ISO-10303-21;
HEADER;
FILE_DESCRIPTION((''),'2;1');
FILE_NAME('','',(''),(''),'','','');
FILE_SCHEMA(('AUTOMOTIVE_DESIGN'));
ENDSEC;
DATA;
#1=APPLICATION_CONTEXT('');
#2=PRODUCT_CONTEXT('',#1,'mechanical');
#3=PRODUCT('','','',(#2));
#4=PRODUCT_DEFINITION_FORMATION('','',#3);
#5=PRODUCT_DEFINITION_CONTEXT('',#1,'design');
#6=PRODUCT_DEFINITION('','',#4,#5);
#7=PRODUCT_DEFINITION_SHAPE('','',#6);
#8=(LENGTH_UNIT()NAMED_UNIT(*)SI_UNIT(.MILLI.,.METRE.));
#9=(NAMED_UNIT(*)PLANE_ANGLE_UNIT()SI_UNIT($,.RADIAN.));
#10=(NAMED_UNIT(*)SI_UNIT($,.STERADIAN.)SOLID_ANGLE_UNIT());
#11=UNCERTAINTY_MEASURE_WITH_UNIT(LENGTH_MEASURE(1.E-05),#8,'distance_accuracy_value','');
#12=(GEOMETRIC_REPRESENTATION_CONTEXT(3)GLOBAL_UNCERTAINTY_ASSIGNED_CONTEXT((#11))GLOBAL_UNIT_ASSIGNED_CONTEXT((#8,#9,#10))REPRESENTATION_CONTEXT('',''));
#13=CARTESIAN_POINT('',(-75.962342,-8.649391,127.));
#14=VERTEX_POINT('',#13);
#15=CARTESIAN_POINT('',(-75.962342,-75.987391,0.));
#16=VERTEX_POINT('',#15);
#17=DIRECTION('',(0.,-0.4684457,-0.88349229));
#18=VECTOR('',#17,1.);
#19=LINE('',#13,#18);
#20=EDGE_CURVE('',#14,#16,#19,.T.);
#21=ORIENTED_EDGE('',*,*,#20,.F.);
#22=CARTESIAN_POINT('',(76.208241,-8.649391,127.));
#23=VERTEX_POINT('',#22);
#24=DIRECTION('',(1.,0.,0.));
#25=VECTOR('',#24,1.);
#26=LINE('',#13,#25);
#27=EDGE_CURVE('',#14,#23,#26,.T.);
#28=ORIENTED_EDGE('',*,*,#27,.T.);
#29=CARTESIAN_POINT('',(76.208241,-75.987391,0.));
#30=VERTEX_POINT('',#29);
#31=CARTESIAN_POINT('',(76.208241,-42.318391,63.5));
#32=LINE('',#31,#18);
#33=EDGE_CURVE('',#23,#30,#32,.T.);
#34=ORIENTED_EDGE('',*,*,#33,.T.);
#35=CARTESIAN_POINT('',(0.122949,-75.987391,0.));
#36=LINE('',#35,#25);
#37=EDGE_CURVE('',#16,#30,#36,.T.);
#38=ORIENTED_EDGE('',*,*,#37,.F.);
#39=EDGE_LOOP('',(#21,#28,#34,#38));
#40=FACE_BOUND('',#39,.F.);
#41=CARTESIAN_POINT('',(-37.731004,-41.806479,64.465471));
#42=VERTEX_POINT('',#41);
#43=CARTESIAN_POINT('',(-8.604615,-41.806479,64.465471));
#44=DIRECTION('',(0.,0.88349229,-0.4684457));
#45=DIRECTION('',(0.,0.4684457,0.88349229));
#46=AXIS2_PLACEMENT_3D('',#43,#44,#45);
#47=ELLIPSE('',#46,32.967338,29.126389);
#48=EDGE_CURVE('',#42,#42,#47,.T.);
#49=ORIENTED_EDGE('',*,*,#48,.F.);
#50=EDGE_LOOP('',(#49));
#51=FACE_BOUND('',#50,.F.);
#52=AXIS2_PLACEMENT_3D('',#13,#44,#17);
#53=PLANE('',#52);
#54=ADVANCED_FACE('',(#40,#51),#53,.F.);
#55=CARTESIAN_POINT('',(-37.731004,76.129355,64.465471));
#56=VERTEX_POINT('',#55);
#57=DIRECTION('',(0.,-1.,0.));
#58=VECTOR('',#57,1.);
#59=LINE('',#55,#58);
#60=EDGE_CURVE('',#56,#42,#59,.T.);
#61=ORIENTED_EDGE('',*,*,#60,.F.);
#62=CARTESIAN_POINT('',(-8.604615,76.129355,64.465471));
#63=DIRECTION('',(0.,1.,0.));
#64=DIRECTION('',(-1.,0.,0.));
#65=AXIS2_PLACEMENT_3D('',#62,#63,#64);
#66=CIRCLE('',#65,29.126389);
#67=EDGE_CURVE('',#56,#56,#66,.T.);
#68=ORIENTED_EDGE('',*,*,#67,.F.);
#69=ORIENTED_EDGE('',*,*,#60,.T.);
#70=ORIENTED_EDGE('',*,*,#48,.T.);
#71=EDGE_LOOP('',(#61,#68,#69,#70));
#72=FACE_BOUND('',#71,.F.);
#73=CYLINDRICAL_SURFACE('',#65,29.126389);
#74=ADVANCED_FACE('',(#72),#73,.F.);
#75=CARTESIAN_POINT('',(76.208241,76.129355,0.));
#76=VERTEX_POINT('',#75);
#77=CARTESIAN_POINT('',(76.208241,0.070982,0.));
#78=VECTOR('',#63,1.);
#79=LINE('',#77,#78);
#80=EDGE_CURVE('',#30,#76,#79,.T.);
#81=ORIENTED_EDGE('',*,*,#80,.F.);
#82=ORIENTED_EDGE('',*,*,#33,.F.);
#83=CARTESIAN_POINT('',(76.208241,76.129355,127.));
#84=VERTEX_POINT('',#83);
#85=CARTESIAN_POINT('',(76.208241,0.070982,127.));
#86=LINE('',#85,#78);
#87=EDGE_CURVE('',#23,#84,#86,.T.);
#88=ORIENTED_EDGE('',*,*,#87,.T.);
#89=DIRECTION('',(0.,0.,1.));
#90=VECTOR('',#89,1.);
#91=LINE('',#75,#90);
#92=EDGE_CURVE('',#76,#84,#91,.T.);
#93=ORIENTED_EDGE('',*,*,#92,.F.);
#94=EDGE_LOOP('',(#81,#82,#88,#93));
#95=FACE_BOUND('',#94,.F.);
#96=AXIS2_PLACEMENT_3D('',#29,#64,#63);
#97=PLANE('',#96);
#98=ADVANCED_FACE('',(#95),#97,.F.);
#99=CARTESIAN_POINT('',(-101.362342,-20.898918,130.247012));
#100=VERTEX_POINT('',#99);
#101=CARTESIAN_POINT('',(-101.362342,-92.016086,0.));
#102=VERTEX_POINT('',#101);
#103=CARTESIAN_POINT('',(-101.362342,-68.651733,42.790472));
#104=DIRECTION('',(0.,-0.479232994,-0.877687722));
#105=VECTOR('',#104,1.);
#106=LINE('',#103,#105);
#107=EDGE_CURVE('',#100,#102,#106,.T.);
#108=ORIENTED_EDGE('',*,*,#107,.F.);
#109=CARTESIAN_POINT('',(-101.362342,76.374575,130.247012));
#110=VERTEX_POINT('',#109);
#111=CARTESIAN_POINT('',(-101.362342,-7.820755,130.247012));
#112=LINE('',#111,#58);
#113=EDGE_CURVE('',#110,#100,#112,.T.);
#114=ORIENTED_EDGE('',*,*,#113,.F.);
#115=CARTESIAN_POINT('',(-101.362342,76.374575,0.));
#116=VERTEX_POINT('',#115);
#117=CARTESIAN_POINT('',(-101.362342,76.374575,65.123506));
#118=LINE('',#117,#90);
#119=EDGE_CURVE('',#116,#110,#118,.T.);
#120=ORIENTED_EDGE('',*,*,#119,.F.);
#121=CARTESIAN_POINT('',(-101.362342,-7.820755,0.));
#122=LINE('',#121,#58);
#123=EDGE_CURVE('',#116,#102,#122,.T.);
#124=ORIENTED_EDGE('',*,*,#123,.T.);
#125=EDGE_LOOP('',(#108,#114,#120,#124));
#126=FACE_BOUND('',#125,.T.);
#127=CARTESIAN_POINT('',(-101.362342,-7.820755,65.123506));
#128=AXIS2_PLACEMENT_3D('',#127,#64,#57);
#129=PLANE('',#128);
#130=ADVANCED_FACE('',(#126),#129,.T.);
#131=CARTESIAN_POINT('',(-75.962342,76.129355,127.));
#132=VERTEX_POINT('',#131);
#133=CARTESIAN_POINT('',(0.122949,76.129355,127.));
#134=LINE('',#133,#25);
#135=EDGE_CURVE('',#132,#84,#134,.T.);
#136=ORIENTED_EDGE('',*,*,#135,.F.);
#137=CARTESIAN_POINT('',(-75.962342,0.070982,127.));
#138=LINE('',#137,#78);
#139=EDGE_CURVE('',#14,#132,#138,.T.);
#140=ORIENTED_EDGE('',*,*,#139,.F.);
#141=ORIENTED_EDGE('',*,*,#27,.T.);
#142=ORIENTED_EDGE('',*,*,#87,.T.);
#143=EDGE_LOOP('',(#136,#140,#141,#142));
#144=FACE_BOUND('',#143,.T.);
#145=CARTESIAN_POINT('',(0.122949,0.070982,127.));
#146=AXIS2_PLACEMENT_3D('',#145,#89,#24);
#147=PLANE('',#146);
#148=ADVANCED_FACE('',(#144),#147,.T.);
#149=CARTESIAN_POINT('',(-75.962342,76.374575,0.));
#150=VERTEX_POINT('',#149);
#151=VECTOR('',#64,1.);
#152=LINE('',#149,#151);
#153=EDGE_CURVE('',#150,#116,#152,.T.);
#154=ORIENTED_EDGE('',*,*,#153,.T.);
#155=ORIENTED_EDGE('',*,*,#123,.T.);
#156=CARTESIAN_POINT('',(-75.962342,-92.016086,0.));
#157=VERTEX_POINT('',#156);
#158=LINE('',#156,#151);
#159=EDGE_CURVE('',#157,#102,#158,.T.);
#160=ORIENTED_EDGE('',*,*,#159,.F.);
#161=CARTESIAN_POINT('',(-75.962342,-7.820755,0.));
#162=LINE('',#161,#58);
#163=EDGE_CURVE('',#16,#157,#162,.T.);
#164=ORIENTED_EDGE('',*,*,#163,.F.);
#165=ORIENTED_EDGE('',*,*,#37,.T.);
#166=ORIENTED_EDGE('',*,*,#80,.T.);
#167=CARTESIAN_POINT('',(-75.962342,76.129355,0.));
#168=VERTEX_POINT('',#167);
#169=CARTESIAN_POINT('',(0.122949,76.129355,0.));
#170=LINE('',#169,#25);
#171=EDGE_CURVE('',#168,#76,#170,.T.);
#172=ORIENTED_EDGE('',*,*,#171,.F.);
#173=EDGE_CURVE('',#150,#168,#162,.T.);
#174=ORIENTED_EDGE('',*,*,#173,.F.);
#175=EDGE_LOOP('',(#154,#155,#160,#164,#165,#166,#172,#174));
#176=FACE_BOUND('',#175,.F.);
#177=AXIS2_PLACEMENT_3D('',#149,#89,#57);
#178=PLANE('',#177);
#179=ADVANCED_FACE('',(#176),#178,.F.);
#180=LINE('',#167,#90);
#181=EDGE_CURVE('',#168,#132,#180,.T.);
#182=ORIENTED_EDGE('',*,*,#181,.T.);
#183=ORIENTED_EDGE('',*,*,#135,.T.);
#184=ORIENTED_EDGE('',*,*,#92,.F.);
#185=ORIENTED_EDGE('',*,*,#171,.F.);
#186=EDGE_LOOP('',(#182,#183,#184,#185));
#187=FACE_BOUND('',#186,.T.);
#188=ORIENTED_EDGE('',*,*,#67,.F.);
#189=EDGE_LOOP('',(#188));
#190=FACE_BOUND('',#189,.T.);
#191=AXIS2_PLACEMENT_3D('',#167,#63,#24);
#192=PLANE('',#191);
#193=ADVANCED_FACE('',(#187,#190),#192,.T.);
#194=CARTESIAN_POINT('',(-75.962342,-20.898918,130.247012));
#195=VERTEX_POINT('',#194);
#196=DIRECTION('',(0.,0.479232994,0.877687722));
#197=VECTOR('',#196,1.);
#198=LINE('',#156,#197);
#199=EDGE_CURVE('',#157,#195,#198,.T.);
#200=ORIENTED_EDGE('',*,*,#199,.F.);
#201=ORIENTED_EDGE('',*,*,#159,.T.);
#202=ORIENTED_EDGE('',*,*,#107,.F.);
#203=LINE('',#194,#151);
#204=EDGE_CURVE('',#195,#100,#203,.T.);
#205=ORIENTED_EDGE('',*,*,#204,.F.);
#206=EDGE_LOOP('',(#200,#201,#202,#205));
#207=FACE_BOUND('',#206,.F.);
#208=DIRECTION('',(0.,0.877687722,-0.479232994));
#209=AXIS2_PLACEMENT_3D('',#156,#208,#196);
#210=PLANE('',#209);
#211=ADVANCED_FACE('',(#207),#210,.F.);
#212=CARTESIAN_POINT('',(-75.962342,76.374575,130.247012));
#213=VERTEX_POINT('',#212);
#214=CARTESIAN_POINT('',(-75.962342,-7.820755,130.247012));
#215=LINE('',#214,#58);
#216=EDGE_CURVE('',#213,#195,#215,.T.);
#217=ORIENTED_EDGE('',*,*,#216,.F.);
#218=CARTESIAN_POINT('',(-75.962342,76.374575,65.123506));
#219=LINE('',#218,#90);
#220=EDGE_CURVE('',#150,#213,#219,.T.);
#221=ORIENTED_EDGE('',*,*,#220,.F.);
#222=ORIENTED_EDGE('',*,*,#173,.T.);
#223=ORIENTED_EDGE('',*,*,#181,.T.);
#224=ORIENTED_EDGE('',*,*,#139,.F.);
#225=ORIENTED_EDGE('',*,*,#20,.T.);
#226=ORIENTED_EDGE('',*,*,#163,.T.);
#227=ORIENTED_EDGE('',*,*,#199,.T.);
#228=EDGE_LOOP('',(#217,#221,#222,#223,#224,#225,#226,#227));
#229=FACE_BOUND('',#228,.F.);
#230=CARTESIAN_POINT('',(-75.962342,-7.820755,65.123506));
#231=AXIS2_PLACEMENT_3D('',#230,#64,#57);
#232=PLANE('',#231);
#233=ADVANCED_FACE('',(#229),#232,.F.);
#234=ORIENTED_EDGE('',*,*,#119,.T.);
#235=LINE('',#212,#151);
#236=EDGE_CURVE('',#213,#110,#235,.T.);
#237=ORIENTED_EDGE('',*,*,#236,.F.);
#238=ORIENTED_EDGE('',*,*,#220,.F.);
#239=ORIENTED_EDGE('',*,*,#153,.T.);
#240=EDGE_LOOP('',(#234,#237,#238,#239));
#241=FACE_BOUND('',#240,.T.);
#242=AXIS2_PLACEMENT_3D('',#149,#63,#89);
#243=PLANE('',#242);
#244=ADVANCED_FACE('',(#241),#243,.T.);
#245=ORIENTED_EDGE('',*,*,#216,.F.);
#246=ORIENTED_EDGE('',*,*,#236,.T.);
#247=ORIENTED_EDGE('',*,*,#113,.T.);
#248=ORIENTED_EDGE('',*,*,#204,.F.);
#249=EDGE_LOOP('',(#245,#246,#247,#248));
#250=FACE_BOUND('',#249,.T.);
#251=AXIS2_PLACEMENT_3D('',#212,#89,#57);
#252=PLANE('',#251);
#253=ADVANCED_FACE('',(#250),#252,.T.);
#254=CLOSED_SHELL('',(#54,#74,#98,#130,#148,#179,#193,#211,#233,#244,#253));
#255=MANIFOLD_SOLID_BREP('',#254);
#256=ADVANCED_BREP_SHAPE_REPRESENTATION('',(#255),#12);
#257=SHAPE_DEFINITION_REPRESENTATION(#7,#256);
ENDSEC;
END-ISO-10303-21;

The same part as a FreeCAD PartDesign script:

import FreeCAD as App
import Part
import Sketcher
from FreeCAD import Vector
Q = App.Units.Quantity


def add_polygon(sketch, points):
    """Adds a closed chain of lines whose ends are joined by coincident constraints."""
    first, n = sketch.GeometryCount, len(points)
    for a, b in zip(points, points[1:] + points[:1]):
        sketch.addGeometry(Part.LineSegment(App.Vector(*a, 0), App.Vector(*b, 0)), False)
    for i in range(n):
        sketch.addConstraint(Sketcher.Constraint("Coincident", first + i, 2, first + (i + 1) % n, 1))

doc = App.newDocument("Part")
body = doc.addObject("PartDesign::Body", "Body")

sketch1 = body.newObject("Sketcher::SketchObject", "Sketch")
sketch1.AttachmentSupport = (doc.getObject("XY_Plane"), [""])
sketch1.MapMode = "FlatFace"
add_polygon(sketch1, [(-76, 76), (-76, -76), (76, -76), (76, 76)])
sketch1.addConstraint([
    Sketcher.Constraint("Vertical", 0),
    Sketcher.Constraint("Horizontal", 1),
    Sketcher.Constraint("Vertical", 2),
    Sketcher.Constraint("Horizontal", 3),
    Sketcher.Constraint("DistanceX", 1, 1, 1, 2, 152.170584),
    Sketcher.Constraint("DistanceY", 0, 2, 0, 1, 152.116746),
    Sketcher.Constraint("DistanceY", 0, 2, -1, 1, 75.987391),
    Sketcher.Constraint("DistanceX", -1, 1, 1, 2, 76.208241),
])
pad1 = body.newObject("PartDesign::Pad", "Pad")
pad1.Profile = sketch1
pad1.Length = Q("5 in")

sketch2 = body.newObject("Sketcher::SketchObject", "Sketch001")
sketch2.AttachmentSupport = (doc.getObject("YZ_Plane"), [""])
sketch2.MapMode = "FlatFace"
sketch2.AttachmentOffset = App.Placement(Vector(0, 0, -75.962342), App.Rotation())
add_polygon(sketch2, [(-76, 127), (-9, 127), (-76, 0)])
sketch2.addConstraint([
    Sketcher.Constraint("Horizontal", 0),
    Sketcher.Constraint("Vertical", 2),
    Sketcher.Constraint("PointOnObject", 1, 2, -1),
    Sketcher.Constraint("DistanceY", 2, 1, 2, 2, Q("5 in")),
    Sketcher.Constraint("DistanceX", 0, 1, 0, 2, 67.338),
    Sketcher.Constraint("DistanceX", 0, 2, -1, 1, 8.649391),
])
pocket1 = body.newObject("PartDesign::Pocket", "Pocket")
pocket1.Profile = sketch2
pocket1.Length = Q("10 in")
pocket1.Reversed = True

sketch3 = body.newObject("Sketcher::SketchObject", "Sketch002")
sketch3.AttachmentSupport = (doc.getObject("XZ_Plane"), [""])
sketch3.MapMode = "FlatFace"
sketch3.AttachmentOffset = App.Placement(Vector(0, 0, -76.129355), App.Rotation())
sketch3.addGeometry(Part.Circle(Vector(-9, 64, 0), Vector(0, 0, 1), 29), False)
sketch3.addConstraint([
    Sketcher.Constraint("Diameter", 0, 58.252778),
    Sketcher.Constraint("DistanceY", -1, 1, 0, 3, 64.465471),
    Sketcher.Constraint("DistanceX", 0, 3, -1, 1, 8.604615),
])
pocket2 = body.newObject("PartDesign::Pocket", "Pocket001")
pocket2.Profile = sketch3
pocket2.Length = Q("100 in")
pocket2.Reversed = True

sketch4 = body.newObject("Sketcher::SketchObject", "Sketch003")
sketch4.AttachmentSupport = (doc.getObject("YZ_Plane"), [""])
sketch4.MapMode = "FlatFace"
sketch4.AttachmentOffset = App.Placement(Vector(0, 0, -75.962342), App.Rotation())
add_polygon(sketch4, [(76, 130), (76, 0), (-92, 0), (-92, 130)])
sketch4.addConstraint([
    Sketcher.Constraint("Vertical", 0),
    Sketcher.Constraint("Horizontal", 1),
    Sketcher.Constraint("Vertical", 2),
    Sketcher.Constraint("Horizontal", 3),
    Sketcher.Constraint("PointOnObject", 0, 2, -1),
    Sketcher.Constraint("DistanceX", 1, 2, 1, 1, 168.390661),
    Sketcher.Constraint("DistanceY", 0, 2, 0, 1, 130.247012),
    Sketcher.Constraint("DistanceX", -1, 1, 0, 2, 76.374575),
])
pad2 = body.newObject("PartDesign::Pad", "Pad001")
pad2.Profile = sketch4
pad2.Length = Q("1 in")
pad2.Reversed = True

sketch5 = body.newObject("Sketcher::SketchObject", "Sketch004")
sketch5.AttachmentSupport = (doc.getObject("YZ_Plane"), [""])
sketch5.MapMode = "FlatFace"
sketch5.AttachmentOffset = App.Placement(Vector(0, 0, -75.962342), App.Rotation())
add_polygon(sketch5, [(-92, 0), (-21, 130), (-92, 130)])
sketch5.addConstraint([
    Sketcher.Constraint("Horizontal", 1),
    Sketcher.Constraint("Vertical", 2),
    Sketcher.Constraint("PointOnObject", 2, 2, -1),
    Sketcher.Constraint("DistanceX", 1, 2, 1, 1, 71.117168),
    Sketcher.Constraint("DistanceY", 2, 2, 2, 1, 130.247012),
    Sketcher.Constraint("DistanceX", 0, 2, -1, 1, 20.898918),
])
pocket3 = body.newObject("PartDesign::Pocket", "Pocket002")
pocket3.Profile = sketch5
pocket3.Length = Q("100 in")

doc.recompute()
